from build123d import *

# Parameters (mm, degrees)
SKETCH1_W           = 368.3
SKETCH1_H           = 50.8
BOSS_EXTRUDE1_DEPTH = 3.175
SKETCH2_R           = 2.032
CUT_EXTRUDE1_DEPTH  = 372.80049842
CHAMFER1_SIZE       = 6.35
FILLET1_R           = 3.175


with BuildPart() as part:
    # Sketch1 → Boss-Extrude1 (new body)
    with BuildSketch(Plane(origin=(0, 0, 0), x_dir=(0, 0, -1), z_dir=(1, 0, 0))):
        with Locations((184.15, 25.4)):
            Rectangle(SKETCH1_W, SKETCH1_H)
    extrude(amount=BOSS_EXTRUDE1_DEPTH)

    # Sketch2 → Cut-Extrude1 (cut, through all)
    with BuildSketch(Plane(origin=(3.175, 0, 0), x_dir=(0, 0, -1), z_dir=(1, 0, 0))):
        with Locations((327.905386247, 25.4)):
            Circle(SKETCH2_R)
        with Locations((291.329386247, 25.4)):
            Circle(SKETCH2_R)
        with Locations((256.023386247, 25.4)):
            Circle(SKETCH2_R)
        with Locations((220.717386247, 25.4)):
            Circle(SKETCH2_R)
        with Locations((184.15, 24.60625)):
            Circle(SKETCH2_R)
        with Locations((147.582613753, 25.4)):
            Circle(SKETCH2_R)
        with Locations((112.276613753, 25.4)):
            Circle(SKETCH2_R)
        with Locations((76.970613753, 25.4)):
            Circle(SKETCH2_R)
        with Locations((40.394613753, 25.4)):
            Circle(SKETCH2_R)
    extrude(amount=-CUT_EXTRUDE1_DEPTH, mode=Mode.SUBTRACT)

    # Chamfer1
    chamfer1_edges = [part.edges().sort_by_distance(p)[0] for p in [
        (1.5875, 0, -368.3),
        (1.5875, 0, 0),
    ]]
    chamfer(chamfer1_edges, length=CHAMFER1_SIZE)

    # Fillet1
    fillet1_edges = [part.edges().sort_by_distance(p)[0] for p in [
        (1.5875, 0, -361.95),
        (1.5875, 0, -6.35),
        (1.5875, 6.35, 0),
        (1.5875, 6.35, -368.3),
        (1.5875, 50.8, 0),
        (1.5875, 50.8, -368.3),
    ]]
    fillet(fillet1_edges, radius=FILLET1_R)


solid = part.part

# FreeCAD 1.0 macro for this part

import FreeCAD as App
import Part
import Sketcher

V = App.Vector
Q = App.Units.Quantity


def edges_at(feature, points):
    """Names of the edges that pass closest to the given points."""
    edges = feature.Shape.Edges
    near = lambda p: min(range(len(edges)), key=lambda i: edges[i].distToShape(Part.Vertex(*p))[0])
    return sorted({f"Edge{near(p) + 1}" for p in points})

doc = App.newDocument("Part")
body = doc.addObject("PartDesign::Body", "Body")

sketch1 = doc.addObject("Sketcher::SketchObject", "Sketch")
body.addObject(sketch1)
sketch1.AttachmentSupport = (doc.YZ_Plane, [""])
sketch1.MapMode = "FlatFace"
sketch1.addGeometry([
    Part.LineSegment(V(50.8, 0, 0), V(0, 0, 0)),
    Part.LineSegment(V(0, 0, 0), V(0, -368.3, 0)),
    Part.LineSegment(V(0, -368.3, 0), V(50.8, -368.3, 0)),
    Part.LineSegment(V(50.8, -368.3, 0), V(50.8, 0, 0)),
], False)
sketch1.addConstraint([
    Sketcher.Constraint("Coincident", 0, 2, 1, 1),
    Sketcher.Constraint("Coincident", 1, 2, 2, 1),
    Sketcher.Constraint("Coincident", 2, 2, 3, 1),
    Sketcher.Constraint("Coincident", 3, 2, 0, 1),
    Sketcher.Constraint("Horizontal", 0),
    Sketcher.Constraint("Vertical", 1),
    Sketcher.Constraint("Horizontal", 2),
    Sketcher.Constraint("Vertical", 3),
    Sketcher.Constraint("Coincident", 0, 2, -1, 1),
    Sketcher.Constraint("DistanceX", 0, 2, 0, 1, Q("2 in")),
    Sketcher.Constraint("DistanceY", 1, 2, 1, 1, Q("14.5 in")),
])
pad1 = doc.addObject("PartDesign::Pad", "Pad")
body.addObject(pad1)
pad1.Profile = sketch1
pad1.Length = Q("0.125 in")

sketch2 = doc.addObject("Sketcher::SketchObject", "Sketch001")
body.addObject(sketch2)
sketch2.AttachmentSupport = (doc.YZ_Plane, [""])
sketch2.MapMode = "FlatFace"
sketch2.AttachmentOffset = App.Placement(V(0, 0, 0.125 * 25.4), App.Rotation())
sketch2.addGeometry([
    Part.Circle(V(25.4, -327.905386, 0), V(0, 0, 1), 2.032),
    Part.Circle(V(25.4, -291.329386, 0), V(0, 0, 1), 2.032),
    Part.Circle(V(25.4, -256.023386, 0), V(0, 0, 1), 2.032),
    Part.Circle(V(25.4, -220.717386, 0), V(0, 0, 1), 2.032),
    Part.Circle(V(24.60625, -184.15, 0), V(0, 0, 1), 2.032),
    Part.Circle(V(25.4, -147.582614, 0), V(0, 0, 1), 2.032),
    Part.Circle(V(25.4, -112.276614, 0), V(0, 0, 1), 2.032),
    Part.Circle(V(25.4, -76.970614, 0), V(0, 0, 1), 2.032),
    Part.Circle(V(25.4, -40.394614, 0), V(0, 0, 1), 2.032),
], False)
sketch2.addConstraint([
    Sketcher.Constraint("Equal", 0, 1),
    Sketcher.Constraint("Equal", 1, 2),
    Sketcher.Constraint("Equal", 2, 3),
    Sketcher.Constraint("Equal", 3, 4),
    Sketcher.Constraint("Equal", 4, 5),
    Sketcher.Constraint("Equal", 5, 6),
    Sketcher.Constraint("Equal", 6, 7),
    Sketcher.Constraint("Equal", 7, 8),
    Sketcher.Constraint("Vertical", 0, 3, 1, 3),
    Sketcher.Constraint("Vertical", 1, 3, 2, 3),
    Sketcher.Constraint("Vertical", 2, 3, 3, 3),
    Sketcher.Constraint("Vertical", 3, 3, 5, 3),
    Sketcher.Constraint("Vertical", 5, 3, 6, 3),
    Sketcher.Constraint("Vertical", 6, 3, 7, 3),
    Sketcher.Constraint("Vertical", 7, 3, 8, 3),
    Sketcher.Constraint("Diameter", 0, Q("0.16 in")),
    Sketcher.Constraint("DistanceX", -1, 1, 0, 3, Q("1 in")),
    Sketcher.Constraint("DistanceY", 4, 3, -1, 1, Q("7.25 in")),
    Sketcher.Constraint("DistanceY", 0, 3, 1, 3, Q("1.44 in")),
    Sketcher.Constraint("DistanceY", 1, 3, 2, 3, Q("1.39 in")),
    Sketcher.Constraint("DistanceY", 2, 3, 3, 3, Q("1.39 in")),
    Sketcher.Constraint("DistanceY", 5, 3, 6, 3, Q("1.39 in")),
    Sketcher.Constraint("DistanceY", 6, 3, 7, 3, Q("1.39 in")),
    Sketcher.Constraint("DistanceY", 7, 3, 8, 3, Q("1.44 in")),
    Sketcher.Constraint("DistanceX", -1, 1, 4, 3, Q("0.96875 in")),
    Sketcher.Constraint("DistanceY", 0, 3, -1, 1, Q("327.905386 mm")),
    Sketcher.Constraint("DistanceY", 5, 3, -1, 1, Q("147.582614 mm")),
])
pocket1 = doc.addObject("PartDesign::Pocket", "Pocket")
body.addObject(pocket1)
pocket1.Profile = sketch2
pocket1.Type = "ThroughAll"
doc.recompute()

chamfer = doc.addObject("PartDesign::Chamfer", "Chamfer")
body.addObject(chamfer)
chamfer.Base = (pocket1, edges_at(pocket1, [(1.587, 0, -368.3), (1.587, 0, 0)]))
chamfer.Size = Q("0.25 in")
doc.recompute()

fillet = doc.addObject("PartDesign::Fillet", "Fillet")
body.addObject(fillet)
fillet.Base = (chamfer, edges_at(chamfer, [
    (1.587, 0, -361.95),
    (1.587, 0, -6.35),
    (1.587, 6.35, 0),
    (1.587, 6.35, -368.3),
    (1.587, 50.8, 0),
    (1.587, 50.8, -368.3),
]))
fillet.Radius = Q("0.125 in")

doc.recompute()
